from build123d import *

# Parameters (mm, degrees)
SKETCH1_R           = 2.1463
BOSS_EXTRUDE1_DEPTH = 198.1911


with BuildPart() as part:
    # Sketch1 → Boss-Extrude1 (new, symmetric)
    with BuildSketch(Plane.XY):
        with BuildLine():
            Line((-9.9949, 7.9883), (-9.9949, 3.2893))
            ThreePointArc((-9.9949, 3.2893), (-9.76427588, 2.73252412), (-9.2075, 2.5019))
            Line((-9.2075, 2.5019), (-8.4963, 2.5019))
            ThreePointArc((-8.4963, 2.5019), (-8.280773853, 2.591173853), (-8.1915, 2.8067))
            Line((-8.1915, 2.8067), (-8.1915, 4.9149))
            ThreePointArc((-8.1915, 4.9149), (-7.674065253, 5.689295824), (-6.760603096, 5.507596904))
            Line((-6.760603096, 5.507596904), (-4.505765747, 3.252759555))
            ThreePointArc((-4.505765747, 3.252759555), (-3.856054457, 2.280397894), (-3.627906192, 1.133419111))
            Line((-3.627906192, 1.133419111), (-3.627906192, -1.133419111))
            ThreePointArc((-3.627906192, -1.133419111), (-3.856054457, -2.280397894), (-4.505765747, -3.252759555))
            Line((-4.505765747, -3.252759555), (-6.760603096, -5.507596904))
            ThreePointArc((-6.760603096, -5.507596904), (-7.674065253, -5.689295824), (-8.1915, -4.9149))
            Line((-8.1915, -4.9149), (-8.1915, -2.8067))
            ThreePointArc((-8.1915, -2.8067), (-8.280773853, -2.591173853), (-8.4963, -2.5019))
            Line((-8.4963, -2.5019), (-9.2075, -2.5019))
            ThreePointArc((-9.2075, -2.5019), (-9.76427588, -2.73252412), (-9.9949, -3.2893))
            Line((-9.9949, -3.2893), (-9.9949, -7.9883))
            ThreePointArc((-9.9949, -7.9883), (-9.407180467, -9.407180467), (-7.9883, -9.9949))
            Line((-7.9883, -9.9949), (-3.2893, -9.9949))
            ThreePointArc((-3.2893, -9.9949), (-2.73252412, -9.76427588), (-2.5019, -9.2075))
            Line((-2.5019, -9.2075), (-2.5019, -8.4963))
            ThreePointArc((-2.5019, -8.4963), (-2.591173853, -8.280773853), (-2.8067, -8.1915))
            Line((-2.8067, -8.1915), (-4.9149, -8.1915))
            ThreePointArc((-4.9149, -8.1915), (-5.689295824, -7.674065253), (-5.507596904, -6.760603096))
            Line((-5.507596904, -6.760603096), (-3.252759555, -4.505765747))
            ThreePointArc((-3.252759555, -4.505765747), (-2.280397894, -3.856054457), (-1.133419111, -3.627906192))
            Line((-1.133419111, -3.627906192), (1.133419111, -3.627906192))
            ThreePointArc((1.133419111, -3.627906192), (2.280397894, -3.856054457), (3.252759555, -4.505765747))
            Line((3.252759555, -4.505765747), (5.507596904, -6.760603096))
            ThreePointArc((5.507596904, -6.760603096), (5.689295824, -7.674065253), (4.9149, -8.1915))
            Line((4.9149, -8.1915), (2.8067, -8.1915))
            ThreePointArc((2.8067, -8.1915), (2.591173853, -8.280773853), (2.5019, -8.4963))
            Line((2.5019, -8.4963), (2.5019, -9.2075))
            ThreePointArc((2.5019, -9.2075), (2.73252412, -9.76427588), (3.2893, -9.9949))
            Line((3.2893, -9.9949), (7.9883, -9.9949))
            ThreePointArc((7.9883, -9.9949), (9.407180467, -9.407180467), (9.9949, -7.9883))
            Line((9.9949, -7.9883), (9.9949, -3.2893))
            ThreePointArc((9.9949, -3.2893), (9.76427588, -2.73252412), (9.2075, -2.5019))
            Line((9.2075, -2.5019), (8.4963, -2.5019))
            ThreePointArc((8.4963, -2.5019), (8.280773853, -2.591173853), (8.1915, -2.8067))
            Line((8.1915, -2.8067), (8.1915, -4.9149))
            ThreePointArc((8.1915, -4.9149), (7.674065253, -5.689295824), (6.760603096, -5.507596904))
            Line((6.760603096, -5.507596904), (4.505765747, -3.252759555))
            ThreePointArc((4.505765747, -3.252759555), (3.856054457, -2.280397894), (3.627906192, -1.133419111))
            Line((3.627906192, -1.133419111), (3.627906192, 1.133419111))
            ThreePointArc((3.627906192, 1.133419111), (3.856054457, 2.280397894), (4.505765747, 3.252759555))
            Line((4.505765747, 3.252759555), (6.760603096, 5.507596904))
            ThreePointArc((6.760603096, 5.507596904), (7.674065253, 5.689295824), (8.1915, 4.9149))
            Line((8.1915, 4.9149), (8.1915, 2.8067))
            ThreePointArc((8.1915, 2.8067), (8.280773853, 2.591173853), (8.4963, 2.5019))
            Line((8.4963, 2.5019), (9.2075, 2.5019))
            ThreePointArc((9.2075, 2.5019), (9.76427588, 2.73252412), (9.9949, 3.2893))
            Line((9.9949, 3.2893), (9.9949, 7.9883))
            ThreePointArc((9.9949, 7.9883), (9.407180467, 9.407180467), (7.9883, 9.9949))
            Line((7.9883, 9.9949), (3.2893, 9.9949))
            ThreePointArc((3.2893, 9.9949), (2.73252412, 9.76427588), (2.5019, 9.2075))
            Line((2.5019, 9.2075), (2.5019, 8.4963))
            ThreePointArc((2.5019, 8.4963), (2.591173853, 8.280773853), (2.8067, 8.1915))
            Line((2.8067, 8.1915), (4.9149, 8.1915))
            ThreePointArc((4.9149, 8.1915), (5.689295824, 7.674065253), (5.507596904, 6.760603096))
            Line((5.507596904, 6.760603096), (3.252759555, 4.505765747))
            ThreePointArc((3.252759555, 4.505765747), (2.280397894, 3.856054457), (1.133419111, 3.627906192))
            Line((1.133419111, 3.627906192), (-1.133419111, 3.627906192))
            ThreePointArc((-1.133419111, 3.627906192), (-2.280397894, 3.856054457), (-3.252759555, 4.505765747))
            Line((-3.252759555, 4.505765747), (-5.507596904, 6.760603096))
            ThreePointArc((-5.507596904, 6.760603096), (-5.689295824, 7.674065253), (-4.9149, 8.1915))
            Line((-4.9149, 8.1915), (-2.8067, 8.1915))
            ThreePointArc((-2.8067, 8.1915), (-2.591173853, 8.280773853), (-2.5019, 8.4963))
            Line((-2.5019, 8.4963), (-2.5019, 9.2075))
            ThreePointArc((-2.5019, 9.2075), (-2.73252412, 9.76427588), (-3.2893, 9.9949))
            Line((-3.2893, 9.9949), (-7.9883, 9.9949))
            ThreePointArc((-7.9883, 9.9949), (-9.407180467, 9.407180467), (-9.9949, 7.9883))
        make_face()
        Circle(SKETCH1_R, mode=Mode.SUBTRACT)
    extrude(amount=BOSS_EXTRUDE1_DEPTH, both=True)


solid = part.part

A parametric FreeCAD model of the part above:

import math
import FreeCAD as App
import Part
import Sketcher
from FreeCAD import Vector
Q = App.Units.Quantity

doc = App.newDocument("Part")
body = doc.addObject("PartDesign::Body", "Body")

# Sketch on XY plane
sketch1 = body.newObject("Sketcher::SketchObject", "Sketch")
sketch1.AttachmentSupport = (doc.getObject("XY_Plane"), [""])
sketch1.MapMode = "FlatFace"
sketch1.addGeometry(Part.LineSegment(Vector(-9.99, 7.99, 0), Vector(-9.99, 3.29, 0)), False)
sketch1.addGeometry(Part.ArcOfCircle(Part.Circle(Vector(-9.21, 3.29, 0), Vector(0, 0, 1), 0.79), math.radians(180), math.radians(270)), False)
sketch1.addGeometry(Part.LineSegment(Vector(-9.21, 2.5, 0), Vector(-8.5, 2.5, 0)), False)
sketch1.addGeometry(Part.ArcOfCircle(Part.Circle(Vector(-8.5, 2.81, 0), Vector(0, 0, 1), 0.3), math.radians(-90), math.radians(0)), False)
sketch1.addGeometry(Part.LineSegment(Vector(-8.19, 2.81, 0), Vector(-8.19, 4.91, 0)), False)
sketch1.addGeometry(Part.ArcOfCircle(Part.Circle(Vector(-7.35, 4.91, 0), Vector(0, 0, 1), 0.84), math.radians(45), math.radians(180)), False)
sketch1.addGeometry(Part.LineSegment(Vector(-6.76, 5.51, 0), Vector(-4.51, 3.25, 0)), False)
sketch1.addGeometry(Part.ArcOfCircle(Part.Circle(Vector(-6.63, 1.13, 0), Vector(0, 0, 1), 3), math.radians(0), math.radians(45)), False)
sketch1.addGeometry(Part.LineSegment(Vector(-3.63, 1.13, 0), Vector(-3.63, -1.13, 0)), False)
sketch1.addGeometry(Part.ArcOfCircle(Part.Circle(Vector(-6.63, -1.13, 0), Vector(0, 0, 1), 3), math.radians(-45), math.radians(0)), False)
sketch1.addGeometry(Part.LineSegment(Vector(-4.51, -3.25, 0), Vector(-6.76, -5.51, 0)), False)
sketch1.addGeometry(Part.ArcOfCircle(Part.Circle(Vector(-7.35, -4.91, 0), Vector(0, 0, 1), 0.84), math.radians(180), math.radians(315)), False)
sketch1.addGeometry(Part.LineSegment(Vector(-8.19, -4.91, 0), Vector(-8.19, -2.81, 0)), False)
sketch1.addGeometry(Part.ArcOfCircle(Part.Circle(Vector(-8.5, -2.81, 0), Vector(0, 0, 1), 0.3), math.radians(0), math.radians(90)), False)
sketch1.addGeometry(Part.LineSegment(Vector(-8.5, -2.5, 0), Vector(-9.21, -2.5, 0)), False)
sketch1.addGeometry(Part.ArcOfCircle(Part.Circle(Vector(-9.21, -3.29, 0), Vector(0, 0, 1), 0.79), math.radians(90), math.radians(180)), False)
sketch1.addGeometry(Part.LineSegment(Vector(-9.99, -3.29, 0), Vector(-9.99, -7.99, 0)), False)
sketch1.addGeometry(Part.ArcOfCircle(Part.Circle(Vector(-7.99, -7.99, 0), Vector(0, 0, 1), 2.01), math.radians(180), math.radians(270)), False)
sketch1.addGeometry(Part.LineSegment(Vector(-7.99, -9.99, 0), Vector(-3.29, -9.99, 0)), False)
sketch1.addGeometry(Part.ArcOfCircle(Part.Circle(Vector(-3.29, -9.21, 0), Vector(0, 0, 1), 0.79), math.radians(-90), math.radians(0)), False)
sketch1.addGeometry(Part.LineSegment(Vector(-2.5, -9.21, 0), Vector(-2.5, -8.5, 0)), False)
sketch1.addGeometry(Part.ArcOfCircle(Part.Circle(Vector(-2.81, -8.5, 0), Vector(0, 0, 1), 0.3), math.radians(0), math.radians(90)), False)
sketch1.addGeometry(Part.LineSegment(Vector(-2.81, -8.19, 0), Vector(-4.91, -8.19, 0)), False)
sketch1.addGeometry(Part.ArcOfCircle(Part.Circle(Vector(-4.91, -7.35, 0), Vector(0, 0, 1), 0.84), math.radians(135), math.radians(270)), False)
sketch1.addGeometry(Part.LineSegment(Vector(-5.51, -6.76, 0), Vector(-3.25, -4.51, 0)), False)
sketch1.addGeometry(Part.ArcOfCircle(Part.Circle(Vector(-1.13, -6.63, 0), Vector(0, 0, 1), 3), math.radians(90), math.radians(135)), False)
sketch1.addGeometry(Part.LineSegment(Vector(-1.13, -3.63, 0), Vector(1.13, -3.63, 0)), False)
sketch1.addGeometry(Part.ArcOfCircle(Part.Circle(Vector(1.13, -6.63, 0), Vector(0, 0, 1), 3), math.radians(45), math.radians(90)), False)
sketch1.addGeometry(Part.LineSegment(Vector(3.25, -4.51, 0), Vector(5.51, -6.76, 0)), False)
sketch1.addGeometry(Part.ArcOfCircle(Part.Circle(Vector(4.91, -7.35, 0), Vector(0, 0, 1), 0.84), math.radians(-90), math.radians(45)), False)
sketch1.addGeometry(Part.LineSegment(Vector(4.91, -8.19, 0), Vector(2.81, -8.19, 0)), False)
sketch1.addGeometry(Part.ArcOfCircle(Part.Circle(Vector(2.81, -8.5, 0), Vector(0, 0, 1), 0.3), math.radians(90), math.radians(180)), False)
sketch1.addGeometry(Part.LineSegment(Vector(2.5, -8.5, 0), Vector(2.5, -9.21, 0)), False)
sketch1.addGeometry(Part.ArcOfCircle(Part.Circle(Vector(3.29, -9.21, 0), Vector(0, 0, 1), 0.79), math.radians(180), math.radians(270)), False)
sketch1.addGeometry(Part.LineSegment(Vector(3.29, -9.99, 0), Vector(7.99, -9.99, 0)), False)
sketch1.addGeometry(Part.ArcOfCircle(Part.Circle(Vector(7.99, -7.99, 0), Vector(0, 0, 1), 2.01), math.radians(-90), math.radians(0)), False)
sketch1.addGeometry(Part.LineSegment(Vector(9.99, -7.99, 0), Vector(9.99, -3.29, 0)), False)
sketch1.addGeometry(Part.ArcOfCircle(Part.Circle(Vector(9.21, -3.29, 0), Vector(0, 0, 1), 0.79), math.radians(0), math.radians(90)), False)
sketch1.addGeometry(Part.LineSegment(Vector(9.21, -2.5, 0), Vector(8.5, -2.5, 0)), False)
sketch1.addGeometry(Part.ArcOfCircle(Part.Circle(Vector(8.5, -2.81, 0), Vector(0, 0, 1), 0.3), math.radians(90), math.radians(180)), False)
sketch1.addGeometry(Part.LineSegment(Vector(8.19, -2.81, 0), Vector(8.19, -4.91, 0)), False)
sketch1.addGeometry(Part.ArcOfCircle(Part.Circle(Vector(7.35, -4.91, 0), Vector(0, 0, 1), 0.84), math.radians(-135), math.radians(0)), False)
sketch1.addGeometry(Part.LineSegment(Vector(6.76, -5.51, 0), Vector(4.51, -3.25, 0)), False)
sketch1.addGeometry(Part.ArcOfCircle(Part.Circle(Vector(6.63, -1.13, 0), Vector(0, 0, 1), 3), math.radians(180), math.radians(225)), False)
sketch1.addGeometry(Part.LineSegment(Vector(3.63, -1.13, 0), Vector(3.63, 1.13, 0)), False)
sketch1.addGeometry(Part.ArcOfCircle(Part.Circle(Vector(6.63, 1.13, 0), Vector(0, 0, 1), 3), math.radians(135), math.radians(180)), False)
sketch1.addGeometry(Part.LineSegment(Vector(4.51, 3.25, 0), Vector(6.76, 5.51, 0)), False)
sketch1.addGeometry(Part.ArcOfCircle(Part.Circle(Vector(7.35, 4.91, 0), Vector(0, 0, 1), 0.84), math.radians(0), math.radians(135)), False)
sketch1.addGeometry(Part.LineSegment(Vector(8.19, 4.91, 0), Vector(8.19, 2.81, 0)), False)
sketch1.addGeometry(Part.ArcOfCircle(Part.Circle(Vector(8.5, 2.81, 0), Vector(0, 0, 1), 0.3), math.radians(180), math.radians(270)), False)
sketch1.addGeometry(Part.LineSegment(Vector(8.5, 2.5, 0), Vector(9.21, 2.5, 0)), False)
sketch1.addGeometry(Part.ArcOfCircle(Part.Circle(Vector(9.21, 3.29, 0), Vector(0, 0, 1), 0.79), math.radians(-90), math.radians(0)), False)
sketch1.addGeometry(Part.LineSegment(Vector(9.99, 3.29, 0), Vector(9.99, 7.99, 0)), False)
sketch1.addGeometry(Part.ArcOfCircle(Part.Circle(Vector(7.99, 7.99, 0), Vector(0, 0, 1), 2.01), math.radians(0), math.radians(90)), False)
sketch1.addGeometry(Part.LineSegment(Vector(7.99, 9.99, 0), Vector(3.29, 9.99, 0)), False)
sketch1.addGeometry(Part.ArcOfCircle(Part.Circle(Vector(3.29, 9.21, 0), Vector(0, 0, 1), 0.79), math.radians(90), math.radians(180)), False)
sketch1.addGeometry(Part.LineSegment(Vector(2.5, 9.21, 0), Vector(2.5, 8.5, 0)), False)
sketch1.addGeometry(Part.ArcOfCircle(Part.Circle(Vector(2.81, 8.5, 0), Vector(0, 0, 1), 0.3), math.radians(180), math.radians(270)), False)
sketch1.addGeometry(Part.LineSegment(Vector(2.81, 8.19, 0), Vector(4.91, 8.19, 0)), False)
sketch1.addGeometry(Part.ArcOfCircle(Part.Circle(Vector(4.91, 7.35, 0), Vector(0, 0, 1), 0.84), math.radians(-45), math.radians(90)), False)
sketch1.addGeometry(Part.LineSegment(Vector(5.51, 6.76, 0), Vector(3.25, 4.51, 0)), False)
sketch1.addGeometry(Part.ArcOfCircle(Part.Circle(Vector(1.13, 6.63, 0), Vector(0, 0, 1), 3), math.radians(-90), math.radians(-45)), False)
sketch1.addGeometry(Part.LineSegment(Vector(1.13, 3.63, 0), Vector(-1.13, 3.63, 0)), False)
sketch1.addGeometry(Part.ArcOfCircle(Part.Circle(Vector(-1.13, 6.63, 0), Vector(0, 0, 1), 3), math.radians(-135), math.radians(-90)), False)
sketch1.addGeometry(Part.LineSegment(Vector(-3.25, 4.51, 0), Vector(-5.51, 6.76, 0)), False)
sketch1.addGeometry(Part.ArcOfCircle(Part.Circle(Vector(-4.91, 7.35, 0), Vector(0, 0, 1), 0.84), math.radians(90), math.radians(225)), False)
sketch1.addGeometry(Part.LineSegment(Vector(-4.91, 8.19, 0), Vector(-2.81, 8.19, 0)), False)
sketch1.addGeometry(Part.ArcOfCircle(Part.Circle(Vector(-2.81, 8.5, 0), Vector(0, 0, 1), 0.3), math.radians(-90), math.radians(0)), False)
sketch1.addGeometry(Part.LineSegment(Vector(-2.5, 8.5, 0), Vector(-2.5, 9.21, 0)), False)
sketch1.addGeometry(Part.ArcOfCircle(Part.Circle(Vector(-3.29, 9.21, 0), Vector(0, 0, 1), 0.79), math.radians(0), math.radians(90)), False)
sketch1.addGeometry(Part.LineSegment(Vector(-3.29, 9.99, 0), Vector(-7.99, 9.99, 0)), False)
sketch1.addGeometry(Part.ArcOfCircle(Part.Circle(Vector(-7.99, 7.99, 0), Vector(0, 0, 1), 2.01), math.radians(90), math.radians(180)), False)
sketch1.addGeometry(Part.Circle(Vector(0, 0, 0), Vector(0, 0, 1), 2.15), False)
sketch1.addConstraint(Sketcher.Constraint("Tangent", 0, 2, 1, 1))
sketch1.addConstraint(Sketcher.Constraint("Tangent", 1, 2, 2, 1))
sketch1.addConstraint(Sketcher.Constraint("Tangent", 2, 2, 3, 1))
sketch1.addConstraint(Sketcher.Constraint("Tangent", 3, 2, 4, 1))
sketch1.addConstraint(Sketcher.Constraint("Tangent", 4, 2, 5, 2))
sketch1.addConstraint(Sketcher.Constraint("Tangent", 5, 1, 6, 1))
sketch1.addConstraint(Sketcher.Constraint("Tangent", 6, 2, 7, 2))
sketch1.addConstraint(Sketcher.Constraint("Tangent", 7, 1, 8, 1))
sketch1.addConstraint(Sketcher.Constraint("Tangent", 8, 2, 9, 2))
sketch1.addConstraint(Sketcher.Constraint("Tangent", 9, 1, 10, 1))
sketch1.addConstraint(Sketcher.Constraint("Tangent", 10, 2, 11, 2))
sketch1.addConstraint(Sketcher.Constraint("Tangent", 11, 1, 12, 1))
sketch1.addConstraint(Sketcher.Constraint("Tangent", 12, 2, 13, 1))
sketch1.addConstraint(Sketcher.Constraint("Tangent", 13, 2, 14, 1))
sketch1.addConstraint(Sketcher.Constraint("Tangent", 14, 2, 15, 1))
sketch1.addConstraint(Sketcher.Constraint("Tangent", 15, 2, 16, 1))
sketch1.addConstraint(Sketcher.Constraint("Tangent", 16, 2, 17, 1))
sketch1.addConstraint(Sketcher.Constraint("Tangent", 17, 2, 18, 1))
sketch1.addConstraint(Sketcher.Constraint("Tangent", 18, 2, 19, 1))
sketch1.addConstraint(Sketcher.Constraint("Tangent", 19, 2, 20, 1))
sketch1.addConstraint(Sketcher.Constraint("Tangent", 20, 2, 21, 1))
sketch1.addConstraint(Sketcher.Constraint("Tangent", 21, 2, 22, 1))
sketch1.addConstraint(Sketcher.Constraint("Tangent", 22, 2, 23, 2))
sketch1.addConstraint(Sketcher.Constraint("Tangent", 23, 1, 24, 1))
sketch1.addConstraint(Sketcher.Constraint("Tangent", 24, 2, 25, 2))
sketch1.addConstraint(Sketcher.Constraint("Tangent", 25, 1, 26, 1))
sketch1.addConstraint(Sketcher.Constraint("Tangent", 26, 2, 27, 2))
sketch1.addConstraint(Sketcher.Constraint("Tangent", 27, 1, 28, 1))
sketch1.addConstraint(Sketcher.Constraint("Tangent", 28, 2, 29, 2))
sketch1.addConstraint(Sketcher.Constraint("Tangent", 29, 1, 30, 1))
sketch1.addConstraint(Sketcher.Constraint("Tangent", 30, 2, 31, 1))
sketch1.addConstraint(Sketcher.Constraint("Tangent", 31, 2, 32, 1))
sketch1.addConstraint(Sketcher.Constraint("Tangent", 32, 2, 33, 1))
sketch1.addConstraint(Sketcher.Constraint("Tangent", 33, 2, 34, 1))
sketch1.addConstraint(Sketcher.Constraint("Tangent", 34, 2, 35, 1))
sketch1.addConstraint(Sketcher.Constraint("Tangent", 35, 2, 36, 1))
sketch1.addConstraint(Sketcher.Constraint("Tangent", 36, 2, 37, 1))
sketch1.addConstraint(Sketcher.Constraint("Tangent", 37, 2, 38, 1))
sketch1.addConstraint(Sketcher.Constraint("Tangent", 38, 2, 39, 1))
sketch1.addConstraint(Sketcher.Constraint("Tangent", 39, 2, 40, 1))
sketch1.addConstraint(Sketcher.Constraint("Tangent", 40, 2, 41, 2))
sketch1.addConstraint(Sketcher.Constraint("Tangent", 41, 1, 42, 1))
sketch1.addConstraint(Sketcher.Constraint("Tangent", 42, 2, 43, 2))
sketch1.addConstraint(Sketcher.Constraint("Tangent", 43, 1, 44, 1))
sketch1.addConstraint(Sketcher.Constraint("Tangent", 44, 2, 45, 2))
sketch1.addConstraint(Sketcher.Constraint("Tangent", 45, 1, 46, 1))
sketch1.addConstraint(Sketcher.Constraint("Tangent", 46, 2, 47, 2))
sketch1.addConstraint(Sketcher.Constraint("Tangent", 47, 1, 48, 1))
sketch1.addConstraint(Sketcher.Constraint("Tangent", 48, 2, 49, 1))
sketch1.addConstraint(Sketcher.Constraint("Tangent", 49, 2, 50, 1))
sketch1.addConstraint(Sketcher.Constraint("Tangent", 50, 2, 51, 1))
sketch1.addConstraint(Sketcher.Constraint("Tangent", 51, 2, 52, 1))
sketch1.addConstraint(Sketcher.Constraint("Tangent", 52, 2, 53, 1))
sketch1.addConstraint(Sketcher.Constraint("Tangent", 53, 2, 54, 1))
sketch1.addConstraint(Sketcher.Constraint("Tangent", 54, 2, 55, 1))
sketch1.addConstraint(Sketcher.Constraint("Tangent", 55, 2, 56, 1))
sketch1.addConstraint(Sketcher.Constraint("Tangent", 56, 2, 57, 1))
sketch1.addConstraint(Sketcher.Constraint("Tangent", 57, 2, 58, 1))
sketch1.addConstraint(Sketcher.Constraint("Tangent", 58, 2, 59, 2))
sketch1.addConstraint(Sketcher.Constraint("Tangent", 59, 1, 60, 1))
sketch1.addConstraint(Sketcher.Constraint("Tangent", 60, 2, 61, 2))
sketch1.addConstraint(Sketcher.Constraint("Tangent", 61, 1, 62, 1))
sketch1.addConstraint(Sketcher.Constraint("Tangent", 62, 2, 63, 2))
sketch1.addConstraint(Sketcher.Constraint("Tangent", 63, 1, 64, 1))
sketch1.addConstraint(Sketcher.Constraint("Tangent", 64, 2, 65, 2))
sketch1.addConstraint(Sketcher.Constraint("Tangent", 65, 1, 66, 1))
sketch1.addConstraint(Sketcher.Constraint("Tangent", 66, 2, 67, 1))
sketch1.addConstraint(Sketcher.Constraint("Tangent", 67, 2, 68, 1))
sketch1.addConstraint(Sketcher.Constraint("Tangent", 68, 2, 69, 1))
sketch1.addConstraint(Sketcher.Constraint("Tangent", 69, 2, 70, 1))
sketch1.addConstraint(Sketcher.Constraint("Tangent", 70, 2, 71, 1))
sketch1.addConstraint(Sketcher.Constraint("Tangent", 71, 2, 0, 1))
sketch1.addConstraint(Sketcher.Constraint("Vertical", 0))
sketch1.addConstraint(Sketcher.Constraint("Horizontal", 2))
sketch1.addConstraint(Sketcher.Constraint("Vertical", 4))
sketch1.addConstraint(Sketcher.Constraint("Vertical", 8))
sketch1.addConstraint(Sketcher.Constraint("Vertical", 12))
sketch1.addConstraint(Sketcher.Constraint("Horizontal", 14))
sketch1.addConstraint(Sketcher.Constraint("Vertical", 16))
sketch1.addConstraint(Sketcher.Constraint("Horizontal", 18))
sketch1.addConstraint(Sketcher.Constraint("Vertical", 20))
sketch1.addConstraint(Sketcher.Constraint("Horizontal", 22))
sketch1.addConstraint(Sketcher.Constraint("Horizontal", 26))
sketch1.addConstraint(Sketcher.Constraint("Horizontal", 30))
sketch1.addConstraint(Sketcher.Constraint("Vertical", 32))
sketch1.addConstraint(Sketcher.Constraint("Horizontal", 34))
sketch1.addConstraint(Sketcher.Constraint("Vertical", 36))
sketch1.addConstraint(Sketcher.Constraint("Horizontal", 38))
sketch1.addConstraint(Sketcher.Constraint("Vertical", 40))
sketch1.addConstraint(Sketcher.Constraint("Vertical", 44))
sketch1.addConstraint(Sketcher.Constraint("Vertical", 48))
sketch1.addConstraint(Sketcher.Constraint("Horizontal", 50))
sketch1.addConstraint(Sketcher.Constraint("Vertical", 52))
sketch1.addConstraint(Sketcher.Constraint("Horizontal", 54))
sketch1.addConstraint(Sketcher.Constraint("Vertical", 56))
sketch1.addConstraint(Sketcher.Constraint("Horizontal", 58))
sketch1.addConstraint(Sketcher.Constraint("Horizontal", 62))
sketch1.addConstraint(Sketcher.Constraint("Horizontal", 66))
sketch1.addConstraint(Sketcher.Constraint("Vertical", 68))
sketch1.addConstraint(Sketcher.Constraint("Horizontal", 70))
sketch1.addConstraint(Sketcher.Constraint("Coincident", 72, 3, -1, 1))
sketch1.addConstraint(Sketcher.Constraint("Equal", 7, 9))
sketch1.addConstraint(Sketcher.Constraint("Equal", 5, 11))
sketch1.addConstraint(Sketcher.Constraint("Equal", 3, 13))
sketch1.addConstraint(Sketcher.Constraint("Equal", 1, 15))
sketch1.addConstraint(Sketcher.Constraint("Equal", 15, 19))
sketch1.addConstraint(Sketcher.Constraint("Equal", 13, 21))
sketch1.addConstraint(Sketcher.Constraint("Equal", 11, 23))
sketch1.addConstraint(Sketcher.Constraint("Equal", 9, 25))
sketch1.addConstraint(Sketcher.Constraint("Equal", 25, 27))
sketch1.addConstraint(Sketcher.Constraint("Equal", 23, 29))
sketch1.addConstraint(Sketcher.Constraint("Equal", 21, 31))
sketch1.addConstraint(Sketcher.Constraint("Equal", 19, 33))
sketch1.addConstraint(Sketcher.Constraint("Equal", 17, 35))
sketch1.addConstraint(Sketcher.Constraint("Equal", 33, 37))
sketch1.addConstraint(Sketcher.Constraint("Equal", 31, 39))
sketch1.addConstraint(Sketcher.Constraint("Equal", 29, 41))
sketch1.addConstraint(Sketcher.Constraint("Equal", 27, 43))
sketch1.addConstraint(Sketcher.Constraint("Equal", 43, 45))
sketch1.addConstraint(Sketcher.Constraint("Equal", 41, 47))
sketch1.addConstraint(Sketcher.Constraint("Equal", 39, 49))
sketch1.addConstraint(Sketcher.Constraint("Equal", 37, 51))
sketch1.addConstraint(Sketcher.Constraint("Equal", 35, 53))
sketch1.addConstraint(Sketcher.Constraint("Equal", 51, 55))
sketch1.addConstraint(Sketcher.Constraint("Equal", 49, 57))
sketch1.addConstraint(Sketcher.Constraint("Equal", 47, 59))
sketch1.addConstraint(Sketcher.Constraint("Equal", 45, 61))
sketch1.addConstraint(Sketcher.Constraint("Equal", 61, 63))
sketch1.addConstraint(Sketcher.Constraint("Equal", 59, 65))
sketch1.addConstraint(Sketcher.Constraint("Equal", 57, 67))
sketch1.addConstraint(Sketcher.Constraint("Equal", 55, 69))
sketch1.addConstraint(Sketcher.Constraint("Equal", 53, 71))
sketch1.addConstraint(Sketcher.Constraint("Symmetric", 1, 3, 37, 3, -1, 1))
sketch1.addConstraint(Sketcher.Constraint("Symmetric", 5, 3, 41, 3, -1, 1))
sketch1.addConstraint(Sketcher.Constraint("Symmetric", 7, 3, 43, 3, -1, 1))
sketch1.addConstraint(Sketcher.Constraint("Symmetric", 11, 3, 47, 3, -1, 1))
sketch1.addConstraint(Sketcher.Constraint("Symmetric", 15, 3, 51, 3, -1, 1))
sketch1.addConstraint(Sketcher.Constraint("Symmetric", 19, 3, 55, 3, -1, 1))
sketch1.addConstraint(Sketcher.Constraint("Symmetric", 23, 3, 59, 3, -1, 1))
sketch1.addConstraint(Sketcher.Constraint("Symmetric", 25, 3, 61, 3, -1, 1))
sketch1.addConstraint(Sketcher.Constraint("Symmetric", 29, 3, 65, 3, -1, 1))
sketch1.addConstraint(Sketcher.Constraint("Symmetric", 33, 3, 69, 3, -1, 1))
sketch1.addConstraint(Sketcher.Constraint("Symmetric", 23, 3, 29, 3, -2))
sketch1.addConstraint(Sketcher.Constraint("Symmetric", 19, 3, 33, 3, -2))
sketch1.addConstraint(Sketcher.Constraint("Symmetric", 15, 3, 37, 3, -2))
sketch1.addConstraint(Sketcher.Constraint("Symmetric", 11, 3, 41, 3, -2))
sketch1.addConstraint(Sketcher.Constraint("Perpendicular", 6, 10))
sketch1.addConstraint(Sketcher.Constraint("Parallel", 10, 24))
sketch1.addConstraint(Sketcher.Constraint("Perpendicular", 24, 28))
sketch1.addConstraint(Sketcher.Constraint("Perpendicular", 42, 46))
sketch1.addConstraint(Sketcher.Constraint("Perpendicular", 60, 64))
sketch1.addConstraint(Sketcher.Constraint("Horizontal", 9, 3, 43, 3))
sketch1.addConstraint(Sketcher.Constraint("Equal", 70, 0))
sketch1.addConstraint(Sketcher.Constraint("Equal", 66, 4))
sketch1.addConstraint(Sketcher.Constraint("Equal", 62, 8))
sketch1.addConstraint(Sketcher.Constraint("Equal", 50, 20))
sketch1.addConstraint(Sketcher.Constraint("Equal", 10, 24))
sketch1.addConstraint(Sketcher.Constraint("Diameter", 72, Q("0.169 in")))
sketch1.addConstraint(Sketcher.Constraint("Radius", 1, Q("0.031 in")))
sketch1.addConstraint(Sketcher.Constraint("Radius", 3, Q("0.012 in")))
sketch1.addConstraint(Sketcher.Constraint("Radius", 5, Q("0.033 in")))
sketch1.addConstraint(Sketcher.Constraint("Radius", 7, Q("0.118 in")))
sketch1.addConstraint(Sketcher.Constraint("Radius", 17, Q("0.079 in")))
sketch1.addConstraint(Sketcher.Constraint("DistanceX", 2, 1, 2, 2, Q("0.028 in")))
sketch1.addConstraint(Sketcher.Constraint("DistanceX", 18, 1, 18, 2, Q("0.185 in")))
sketch1.addConstraint(Sketcher.Constraint("DistanceX", 22, 2, 22, 1, Q("0.083 in")))
sketch1.addConstraint(Sketcher.Constraint("DistanceX", 1, 3, -1, 1, Q("0.3625 in")))
sketch1.addConstraint(Sketcher.Constraint("DistanceX", 26, 1, 26, 2, 2.266838))
pad1 = body.newObject("PartDesign::Pad", "Pad")
pad1.Profile = sketch1
pad1.Length = 396.3822
pad1.Midplane = True

doc.recompute()
